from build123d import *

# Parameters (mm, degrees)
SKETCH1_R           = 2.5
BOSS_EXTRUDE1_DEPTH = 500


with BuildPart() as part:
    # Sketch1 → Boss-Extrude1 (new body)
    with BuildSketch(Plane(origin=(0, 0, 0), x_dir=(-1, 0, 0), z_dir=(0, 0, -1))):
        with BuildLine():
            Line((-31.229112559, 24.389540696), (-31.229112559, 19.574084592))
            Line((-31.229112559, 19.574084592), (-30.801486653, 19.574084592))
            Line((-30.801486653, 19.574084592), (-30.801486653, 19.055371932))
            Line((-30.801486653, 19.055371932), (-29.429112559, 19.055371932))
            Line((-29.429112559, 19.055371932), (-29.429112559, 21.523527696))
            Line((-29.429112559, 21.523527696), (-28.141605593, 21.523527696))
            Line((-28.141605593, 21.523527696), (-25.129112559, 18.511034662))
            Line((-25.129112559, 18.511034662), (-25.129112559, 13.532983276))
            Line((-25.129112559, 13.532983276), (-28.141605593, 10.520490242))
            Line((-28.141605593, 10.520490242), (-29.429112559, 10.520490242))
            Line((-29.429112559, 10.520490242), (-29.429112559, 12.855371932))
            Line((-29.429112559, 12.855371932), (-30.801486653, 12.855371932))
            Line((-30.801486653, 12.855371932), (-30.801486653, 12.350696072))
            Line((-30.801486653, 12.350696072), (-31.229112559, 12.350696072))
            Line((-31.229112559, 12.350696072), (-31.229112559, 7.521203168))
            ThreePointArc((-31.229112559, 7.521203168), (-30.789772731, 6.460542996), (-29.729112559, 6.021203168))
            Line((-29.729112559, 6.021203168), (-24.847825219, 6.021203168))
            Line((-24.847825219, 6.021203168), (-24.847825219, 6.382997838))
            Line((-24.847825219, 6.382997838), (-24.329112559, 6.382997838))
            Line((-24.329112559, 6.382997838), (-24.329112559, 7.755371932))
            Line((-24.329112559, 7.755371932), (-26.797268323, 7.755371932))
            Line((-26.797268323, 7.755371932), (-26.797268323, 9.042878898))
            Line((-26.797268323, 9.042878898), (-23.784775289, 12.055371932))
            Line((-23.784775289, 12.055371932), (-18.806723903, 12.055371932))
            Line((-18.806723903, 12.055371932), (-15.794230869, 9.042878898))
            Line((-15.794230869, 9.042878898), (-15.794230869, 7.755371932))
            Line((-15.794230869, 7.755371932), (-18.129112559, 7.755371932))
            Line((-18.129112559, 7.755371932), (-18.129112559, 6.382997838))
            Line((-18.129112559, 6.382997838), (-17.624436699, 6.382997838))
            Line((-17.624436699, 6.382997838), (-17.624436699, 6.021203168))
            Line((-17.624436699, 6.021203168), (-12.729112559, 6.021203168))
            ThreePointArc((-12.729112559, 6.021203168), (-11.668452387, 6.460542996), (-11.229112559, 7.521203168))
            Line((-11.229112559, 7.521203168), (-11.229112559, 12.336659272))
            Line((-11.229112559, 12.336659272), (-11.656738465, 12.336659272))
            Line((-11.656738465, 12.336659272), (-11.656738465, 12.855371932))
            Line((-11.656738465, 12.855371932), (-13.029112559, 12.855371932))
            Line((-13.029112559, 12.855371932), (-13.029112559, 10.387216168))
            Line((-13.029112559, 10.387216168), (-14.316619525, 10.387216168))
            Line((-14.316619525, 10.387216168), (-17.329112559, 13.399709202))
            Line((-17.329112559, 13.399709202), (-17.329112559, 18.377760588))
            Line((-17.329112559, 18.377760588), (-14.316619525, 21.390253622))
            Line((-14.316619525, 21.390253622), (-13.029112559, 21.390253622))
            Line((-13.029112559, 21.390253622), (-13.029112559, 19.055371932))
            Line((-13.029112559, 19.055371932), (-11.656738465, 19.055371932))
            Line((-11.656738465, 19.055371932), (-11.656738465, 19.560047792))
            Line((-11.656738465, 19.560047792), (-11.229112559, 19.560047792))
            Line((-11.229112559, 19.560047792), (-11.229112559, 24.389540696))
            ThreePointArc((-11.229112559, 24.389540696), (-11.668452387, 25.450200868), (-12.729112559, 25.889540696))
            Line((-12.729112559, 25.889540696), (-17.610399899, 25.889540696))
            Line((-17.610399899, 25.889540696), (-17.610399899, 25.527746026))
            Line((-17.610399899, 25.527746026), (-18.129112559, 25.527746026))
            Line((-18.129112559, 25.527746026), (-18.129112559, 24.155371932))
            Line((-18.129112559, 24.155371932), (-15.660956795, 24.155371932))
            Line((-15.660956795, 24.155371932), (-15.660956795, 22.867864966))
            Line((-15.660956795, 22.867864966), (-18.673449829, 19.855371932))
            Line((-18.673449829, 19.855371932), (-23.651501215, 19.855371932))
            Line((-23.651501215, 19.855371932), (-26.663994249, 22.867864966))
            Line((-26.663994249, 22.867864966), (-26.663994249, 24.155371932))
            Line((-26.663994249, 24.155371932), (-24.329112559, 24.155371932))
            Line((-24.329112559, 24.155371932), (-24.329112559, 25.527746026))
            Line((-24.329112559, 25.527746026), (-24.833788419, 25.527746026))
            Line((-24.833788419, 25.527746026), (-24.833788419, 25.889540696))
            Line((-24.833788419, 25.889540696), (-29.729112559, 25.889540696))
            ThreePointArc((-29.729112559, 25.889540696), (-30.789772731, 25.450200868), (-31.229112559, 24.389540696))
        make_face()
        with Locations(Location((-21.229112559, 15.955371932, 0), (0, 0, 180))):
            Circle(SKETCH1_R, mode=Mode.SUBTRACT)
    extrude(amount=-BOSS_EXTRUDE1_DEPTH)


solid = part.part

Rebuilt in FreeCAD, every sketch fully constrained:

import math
import FreeCAD as App
import Part
import Sketcher
Q = App.Units.Quantity

doc = App.newDocument("Part")
body = doc.addObject("PartDesign::Body", "Body")

# Sketch on XY plane
sketch1 = body.newObject("Sketcher::SketchObject", "Sketch")
sketch1.AttachmentSupport = (doc.getObject("XY_Plane"), [""])
sketch1.MapMode = "FlatFace"
sketch1.addGeometry(Part.LineSegment(App.Vector(31.229113, 24.389541, 0), App.Vector(31.229113, 19.574085, 0)), False)
sketch1.addGeometry(Part.LineSegment(App.Vector(31.229113, 19.574085, 0), App.Vector(30.801487, 19.574085, 0)), False)
sketch1.addGeometry(Part.LineSegment(App.Vector(30.801487, 19.574085, 0), App.Vector(30.801487, 19.055372, 0)), False)
sketch1.addGeometry(Part.LineSegment(App.Vector(30.801487, 19.055372, 0), App.Vector(29.429113, 19.055372, 0)), False)
sketch1.addGeometry(Part.LineSegment(App.Vector(29.429113, 19.055372, 0), App.Vector(29.429113, 21.523528, 0)), False)
sketch1.addGeometry(Part.LineSegment(App.Vector(29.429113, 21.523528, 0), App.Vector(28.141606, 21.523528, 0)), False)
sketch1.addGeometry(Part.LineSegment(App.Vector(28.141606, 21.523528, 0), App.Vector(25.129113, 18.511035, 0)), False)
sketch1.addGeometry(Part.LineSegment(App.Vector(25.129113, 18.511035, 0), App.Vector(25.129113, 13.532983, 0)), False)
sketch1.addGeometry(Part.LineSegment(App.Vector(25.129113, 13.532983, 0), App.Vector(28.141606, 10.52049, 0)), False)
sketch1.addGeometry(Part.LineSegment(App.Vector(28.141606, 10.52049, 0), App.Vector(29.429113, 10.52049, 0)), False)
sketch1.addGeometry(Part.LineSegment(App.Vector(29.429113, 10.52049, 0), App.Vector(29.429113, 12.855372, 0)), False)
sketch1.addGeometry(Part.LineSegment(App.Vector(29.429113, 12.855372, 0), App.Vector(30.801487, 12.855372, 0)), False)
sketch1.addGeometry(Part.LineSegment(App.Vector(30.801487, 12.855372, 0), App.Vector(30.801487, 12.350696, 0)), False)
sketch1.addGeometry(Part.LineSegment(App.Vector(30.801487, 12.350696, 0), App.Vector(31.229113, 12.350696, 0)), False)
sketch1.addGeometry(Part.LineSegment(App.Vector(31.229113, 12.350696, 0), App.Vector(31.229113, 7.521203, 0)), False)
sketch1.addGeometry(Part.ArcOfCircle(Part.Circle(App.Vector(29.729113, 7.521203, 0), App.Vector(0, 0, 1), 1.5), math.radians(-90), math.radians(0)), False)
sketch1.addGeometry(Part.LineSegment(App.Vector(29.729113, 6.021203, 0), App.Vector(24.847825, 6.021203, 0)), False)
sketch1.addGeometry(Part.LineSegment(App.Vector(24.847825, 6.021203, 0), App.Vector(24.847825, 6.382998, 0)), False)
sketch1.addGeometry(Part.LineSegment(App.Vector(24.847825, 6.382998, 0), App.Vector(24.329113, 6.382998, 0)), False)
sketch1.addGeometry(Part.LineSegment(App.Vector(24.329113, 6.382998, 0), App.Vector(24.329113, 7.755372, 0)), False)
sketch1.addGeometry(Part.LineSegment(App.Vector(24.329113, 7.755372, 0), App.Vector(26.797268, 7.755372, 0)), False)
sketch1.addGeometry(Part.LineSegment(App.Vector(26.797268, 7.755372, 0), App.Vector(26.797268, 9.042879, 0)), False)
sketch1.addGeometry(Part.LineSegment(App.Vector(26.797268, 9.042879, 0), App.Vector(23.784775, 12.055372, 0)), False)
sketch1.addGeometry(Part.LineSegment(App.Vector(23.784775, 12.055372, 0), App.Vector(18.806724, 12.055372, 0)), False)
sketch1.addGeometry(Part.LineSegment(App.Vector(18.806724, 12.055372, 0), App.Vector(15.794231, 9.042879, 0)), False)
sketch1.addGeometry(Part.LineSegment(App.Vector(15.794231, 9.042879, 0), App.Vector(15.794231, 7.755372, 0)), False)
sketch1.addGeometry(Part.LineSegment(App.Vector(15.794231, 7.755372, 0), App.Vector(18.129113, 7.755372, 0)), False)
sketch1.addGeometry(Part.LineSegment(App.Vector(18.129113, 7.755372, 0), App.Vector(18.129113, 6.382998, 0)), False)
sketch1.addGeometry(Part.LineSegment(App.Vector(18.129113, 6.382998, 0), App.Vector(17.624437, 6.382998, 0)), False)
sketch1.addGeometry(Part.LineSegment(App.Vector(17.624437, 6.382998, 0), App.Vector(17.624437, 6.021203, 0)), False)
sketch1.addGeometry(Part.LineSegment(App.Vector(17.624437, 6.021203, 0), App.Vector(12.729113, 6.021203, 0)), False)
sketch1.addGeometry(Part.ArcOfCircle(Part.Circle(App.Vector(12.729113, 7.521203, 0), App.Vector(0, 0, 1), 1.5), math.radians(180), math.radians(270)), False)
sketch1.addGeometry(Part.LineSegment(App.Vector(11.229113, 7.521203, 0), App.Vector(11.229113, 12.336659, 0)), False)
sketch1.addGeometry(Part.LineSegment(App.Vector(11.229113, 12.336659, 0), App.Vector(11.656738, 12.336659, 0)), False)
sketch1.addGeometry(Part.LineSegment(App.Vector(11.656738, 12.336659, 0), App.Vector(11.656738, 12.855372, 0)), False)
sketch1.addGeometry(Part.LineSegment(App.Vector(11.656738, 12.855372, 0), App.Vector(13.029113, 12.855372, 0)), False)
sketch1.addGeometry(Part.LineSegment(App.Vector(13.029113, 12.855372, 0), App.Vector(13.029113, 10.387216, 0)), False)
sketch1.addGeometry(Part.LineSegment(App.Vector(13.029113, 10.387216, 0), App.Vector(14.31662, 10.387216, 0)), False)
sketch1.addGeometry(Part.LineSegment(App.Vector(14.31662, 10.387216, 0), App.Vector(17.329113, 13.399709, 0)), False)
sketch1.addGeometry(Part.LineSegment(App.Vector(17.329113, 13.399709, 0), App.Vector(17.329113, 18.377761, 0)), False)
sketch1.addGeometry(Part.LineSegment(App.Vector(17.329113, 18.377761, 0), App.Vector(14.31662, 21.390254, 0)), False)
sketch1.addGeometry(Part.LineSegment(App.Vector(14.31662, 21.390254, 0), App.Vector(13.029113, 21.390254, 0)), False)
sketch1.addGeometry(Part.LineSegment(App.Vector(13.029113, 21.390254, 0), App.Vector(13.029113, 19.055372, 0)), False)
sketch1.addGeometry(Part.LineSegment(App.Vector(13.029113, 19.055372, 0), App.Vector(11.656738, 19.055372, 0)), False)
sketch1.addGeometry(Part.LineSegment(App.Vector(11.656738, 19.055372, 0), App.Vector(11.656738, 19.560048, 0)), False)
sketch1.addGeometry(Part.LineSegment(App.Vector(11.656738, 19.560048, 0), App.Vector(11.229113, 19.560048, 0)), False)
sketch1.addGeometry(Part.LineSegment(App.Vector(11.229113, 19.560048, 0), App.Vector(11.229113, 24.389541, 0)), False)
sketch1.addGeometry(Part.ArcOfCircle(Part.Circle(App.Vector(12.729113, 24.389541, 0), App.Vector(0, 0, 1), 1.5), math.radians(90), math.radians(180)), False)
sketch1.addGeometry(Part.LineSegment(App.Vector(12.729113, 25.889541, 0), App.Vector(17.6104, 25.889541, 0)), False)
sketch1.addGeometry(Part.LineSegment(App.Vector(17.6104, 25.889541, 0), App.Vector(17.6104, 25.527746, 0)), False)
sketch1.addGeometry(Part.LineSegment(App.Vector(17.6104, 25.527746, 0), App.Vector(18.129113, 25.527746, 0)), False)
sketch1.addGeometry(Part.LineSegment(App.Vector(18.129113, 25.527746, 0), App.Vector(18.129113, 24.155372, 0)), False)
sketch1.addGeometry(Part.LineSegment(App.Vector(18.129113, 24.155372, 0), App.Vector(15.660957, 24.155372, 0)), False)
sketch1.addGeometry(Part.LineSegment(App.Vector(15.660957, 24.155372, 0), App.Vector(15.660957, 22.867865, 0)), False)
sketch1.addGeometry(Part.LineSegment(App.Vector(15.660957, 22.867865, 0), App.Vector(18.67345, 19.855372, 0)), False)
sketch1.addGeometry(Part.LineSegment(App.Vector(18.67345, 19.855372, 0), App.Vector(23.651501, 19.855372, 0)), False)
sketch1.addGeometry(Part.LineSegment(App.Vector(23.651501, 19.855372, 0), App.Vector(26.663994, 22.867865, 0)), False)
sketch1.addGeometry(Part.LineSegment(App.Vector(26.663994, 22.867865, 0), App.Vector(26.663994, 24.155372, 0)), False)
sketch1.addGeometry(Part.LineSegment(App.Vector(26.663994, 24.155372, 0), App.Vector(24.329113, 24.155372, 0)), False)
sketch1.addGeometry(Part.LineSegment(App.Vector(24.329113, 24.155372, 0), App.Vector(24.329113, 25.527746, 0)), False)
sketch1.addGeometry(Part.LineSegment(App.Vector(24.329113, 25.527746, 0), App.Vector(24.833788, 25.527746, 0)), False)
sketch1.addGeometry(Part.LineSegment(App.Vector(24.833788, 25.527746, 0), App.Vector(24.833788, 25.889541, 0)), False)
sketch1.addGeometry(Part.LineSegment(App.Vector(24.833788, 25.889541, 0), App.Vector(29.729113, 25.889541, 0)), False)
sketch1.addGeometry(Part.ArcOfCircle(Part.Circle(App.Vector(29.729113, 24.389541, 0), App.Vector(0, 0, 1), 1.5), math.radians(0), math.radians(90)), False)
sketch1.addGeometry(Part.Circle(App.Vector(21.229113, 15.955372, 0), App.Vector(0, 0, 1), 2.5), False)
sketch1.addConstraint(Sketcher.Constraint("Coincident", 0, 2, 1, 1))
sketch1.addConstraint(Sketcher.Constraint("Coincident", 1, 2, 2, 1))
sketch1.addConstraint(Sketcher.Constraint("Coincident", 2, 2, 3, 1))
sketch1.addConstraint(Sketcher.Constraint("Coincident", 3, 2, 4, 1))
sketch1.addConstraint(Sketcher.Constraint("Coincident", 4, 2, 5, 1))
sketch1.addConstraint(Sketcher.Constraint("Coincident", 5, 2, 6, 1))
sketch1.addConstraint(Sketcher.Constraint("Coincident", 6, 2, 7, 1))
sketch1.addConstraint(Sketcher.Constraint("Coincident", 7, 2, 8, 1))
sketch1.addConstraint(Sketcher.Constraint("Coincident", 8, 2, 9, 1))
sketch1.addConstraint(Sketcher.Constraint("Coincident", 9, 2, 10, 1))
sketch1.addConstraint(Sketcher.Constraint("Coincident", 10, 2, 11, 1))
sketch1.addConstraint(Sketcher.Constraint("Coincident", 11, 2, 12, 1))
sketch1.addConstraint(Sketcher.Constraint("Coincident", 12, 2, 13, 1))
sketch1.addConstraint(Sketcher.Constraint("Coincident", 13, 2, 14, 1))
sketch1.addConstraint(Sketcher.Constraint("Tangent", 14, 2, 15, 2))
sketch1.addConstraint(Sketcher.Constraint("Tangent", 15, 1, 16, 1))
sketch1.addConstraint(Sketcher.Constraint("Coincident", 16, 2, 17, 1))
sketch1.addConstraint(Sketcher.Constraint("Coincident", 17, 2, 18, 1))
sketch1.addConstraint(Sketcher.Constraint("Coincident", 18, 2, 19, 1))
sketch1.addConstraint(Sketcher.Constraint("Coincident", 19, 2, 20, 1))
sketch1.addConstraint(Sketcher.Constraint("Coincident", 20, 2, 21, 1))
sketch1.addConstraint(Sketcher.Constraint("Coincident", 21, 2, 22, 1))
sketch1.addConstraint(Sketcher.Constraint("Coincident", 22, 2, 23, 1))
sketch1.addConstraint(Sketcher.Constraint("Coincident", 23, 2, 24, 1))
sketch1.addConstraint(Sketcher.Constraint("Coincident", 24, 2, 25, 1))
sketch1.addConstraint(Sketcher.Constraint("Coincident", 25, 2, 26, 1))
sketch1.addConstraint(Sketcher.Constraint("Coincident", 26, 2, 27, 1))
sketch1.addConstraint(Sketcher.Constraint("Coincident", 27, 2, 28, 1))
sketch1.addConstraint(Sketcher.Constraint("Coincident", 28, 2, 29, 1))
sketch1.addConstraint(Sketcher.Constraint("Coincident", 29, 2, 30, 1))
sketch1.addConstraint(Sketcher.Constraint("Tangent", 30, 2, 31, 2))
sketch1.addConstraint(Sketcher.Constraint("Tangent", 31, 1, 32, 1))
sketch1.addConstraint(Sketcher.Constraint("Coincident", 32, 2, 33, 1))
sketch1.addConstraint(Sketcher.Constraint("Coincident", 33, 2, 34, 1))
sketch1.addConstraint(Sketcher.Constraint("Coincident", 34, 2, 35, 1))
sketch1.addConstraint(Sketcher.Constraint("Coincident", 35, 2, 36, 1))
sketch1.addConstraint(Sketcher.Constraint("Coincident", 36, 2, 37, 1))
sketch1.addConstraint(Sketcher.Constraint("Coincident", 37, 2, 38, 1))
sketch1.addConstraint(Sketcher.Constraint("Coincident", 38, 2, 39, 1))
sketch1.addConstraint(Sketcher.Constraint("Coincident", 39, 2, 40, 1))
sketch1.addConstraint(Sketcher.Constraint("Coincident", 40, 2, 41, 1))
sketch1.addConstraint(Sketcher.Constraint("Coincident", 41, 2, 42, 1))
sketch1.addConstraint(Sketcher.Constraint("Coincident", 42, 2, 43, 1))
sketch1.addConstraint(Sketcher.Constraint("Coincident", 43, 2, 44, 1))
sketch1.addConstraint(Sketcher.Constraint("Coincident", 44, 2, 45, 1))
sketch1.addConstraint(Sketcher.Constraint("Coincident", 45, 2, 46, 1))
sketch1.addConstraint(Sketcher.Constraint("Tangent", 46, 2, 47, 2))
sketch1.addConstraint(Sketcher.Constraint("Tangent", 47, 1, 48, 1))
sketch1.addConstraint(Sketcher.Constraint("Coincident", 48, 2, 49, 1))
sketch1.addConstraint(Sketcher.Constraint("Coincident", 49, 2, 50, 1))
sketch1.addConstraint(Sketcher.Constraint("Coincident", 50, 2, 51, 1))
sketch1.addConstraint(Sketcher.Constraint("Coincident", 51, 2, 52, 1))
sketch1.addConstraint(Sketcher.Constraint("Coincident", 52, 2, 53, 1))
sketch1.addConstraint(Sketcher.Constraint("Coincident", 53, 2, 54, 1))
sketch1.addConstraint(Sketcher.Constraint("Coincident", 54, 2, 55, 1))
sketch1.addConstraint(Sketcher.Constraint("Coincident", 55, 2, 56, 1))
sketch1.addConstraint(Sketcher.Constraint("Coincident", 56, 2, 57, 1))
sketch1.addConstraint(Sketcher.Constraint("Coincident", 57, 2, 58, 1))
sketch1.addConstraint(Sketcher.Constraint("Coincident", 58, 2, 59, 1))
sketch1.addConstraint(Sketcher.Constraint("Coincident", 59, 2, 60, 1))
sketch1.addConstraint(Sketcher.Constraint("Coincident", 60, 2, 61, 1))
sketch1.addConstraint(Sketcher.Constraint("Coincident", 61, 2, 62, 1))
sketch1.addConstraint(Sketcher.Constraint("Tangent", 62, 2, 63, 2))
sketch1.addConstraint(Sketcher.Constraint("Tangent", 63, 1, 0, 1))
sketch1.addConstraint(Sketcher.Constraint("Vertical", 0))
sketch1.addConstraint(Sketcher.Constraint("Horizontal", 1))
sketch1.addConstraint(Sketcher.Constraint("Vertical", 2))
sketch1.addConstraint(Sketcher.Constraint("Horizontal", 3))
sketch1.addConstraint(Sketcher.Constraint("Vertical", 4))
sketch1.addConstraint(Sketcher.Constraint("Horizontal", 5))
sketch1.addConstraint(Sketcher.Constraint("Vertical", 7))
sketch1.addConstraint(Sketcher.Constraint("Horizontal", 9))
sketch1.addConstraint(Sketcher.Constraint("Vertical", 10))
sketch1.addConstraint(Sketcher.Constraint("Horizontal", 11))
sketch1.addConstraint(Sketcher.Constraint("Vertical", 12))
sketch1.addConstraint(Sketcher.Constraint("Horizontal", 13))
sketch1.addConstraint(Sketcher.Constraint("Vertical", 14))
sketch1.addConstraint(Sketcher.Constraint("Horizontal", 16))
sketch1.addConstraint(Sketcher.Constraint("Vertical", 17))
sketch1.addConstraint(Sketcher.Constraint("Horizontal", 18))
sketch1.addConstraint(Sketcher.Constraint("Vertical", 19))
sketch1.addConstraint(Sketcher.Constraint("Horizontal", 20))
sketch1.addConstraint(Sketcher.Constraint("Vertical", 21))
sketch1.addConstraint(Sketcher.Constraint("Horizontal", 23))
sketch1.addConstraint(Sketcher.Constraint("Vertical", 25))
sketch1.addConstraint(Sketcher.Constraint("Horizontal", 26))
sketch1.addConstraint(Sketcher.Constraint("Vertical", 27))
sketch1.addConstraint(Sketcher.Constraint("Horizontal", 28))
sketch1.addConstraint(Sketcher.Constraint("Vertical", 29))
sketch1.addConstraint(Sketcher.Constraint("Horizontal", 30))
sketch1.addConstraint(Sketcher.Constraint("Vertical", 32))
sketch1.addConstraint(Sketcher.Constraint("Horizontal", 33))
sketch1.addConstraint(Sketcher.Constraint("Vertical", 34))
sketch1.addConstraint(Sketcher.Constraint("Horizontal", 35))
sketch1.addConstraint(Sketcher.Constraint("Vertical", 36))
sketch1.addConstraint(Sketcher.Constraint("Horizontal", 37))
sketch1.addConstraint(Sketcher.Constraint("Vertical", 39))
sketch1.addConstraint(Sketcher.Constraint("Horizontal", 41))
sketch1.addConstraint(Sketcher.Constraint("Vertical", 42))
sketch1.addConstraint(Sketcher.Constraint("Horizontal", 43))
sketch1.addConstraint(Sketcher.Constraint("Vertical", 44))
sketch1.addConstraint(Sketcher.Constraint("Horizontal", 45))
sketch1.addConstraint(Sketcher.Constraint("Vertical", 46))
sketch1.addConstraint(Sketcher.Constraint("Horizontal", 48))
sketch1.addConstraint(Sketcher.Constraint("Vertical", 49))
sketch1.addConstraint(Sketcher.Constraint("Horizontal", 50))
sketch1.addConstraint(Sketcher.Constraint("Vertical", 51))
sketch1.addConstraint(Sketcher.Constraint("Horizontal", 52))
sketch1.addConstraint(Sketcher.Constraint("Vertical", 53))
sketch1.addConstraint(Sketcher.Constraint("Horizontal", 55))
sketch1.addConstraint(Sketcher.Constraint("Vertical", 57))
sketch1.addConstraint(Sketcher.Constraint("Horizontal", 58))
sketch1.addConstraint(Sketcher.Constraint("Vertical", 59))
sketch1.addConstraint(Sketcher.Constraint("Horizontal", 60))
sketch1.addConstraint(Sketcher.Constraint("Vertical", 61))
sketch1.addConstraint(Sketcher.Constraint("Horizontal", 62))
sketch1.addConstraint(Sketcher.Constraint("Equal", 15, 31))
sketch1.addConstraint(Sketcher.Constraint("Equal", 31, 47))
sketch1.addConstraint(Sketcher.Constraint("Equal", 47, 63))
sketch1.addConstraint(Sketcher.Constraint("Perpendicular", 6, 8))
sketch1.addConstraint(Sketcher.Constraint("Parallel", 8, 22))
sketch1.addConstraint(Sketcher.Constraint("Perpendicular", 22, 24))
sketch1.addConstraint(Sketcher.Constraint("Parallel", 24, 38))
sketch1.addConstraint(Sketcher.Constraint("Perpendicular", 38, 40))
sketch1.addConstraint(Sketcher.Constraint("Parallel", 40, 54))
sketch1.addConstraint(Sketcher.Constraint("Perpendicular", 54, 56))
sketch1.addConstraint(Sketcher.Constraint("Horizontal", 15, 3, 31, 3))
sketch1.addConstraint(Sketcher.Constraint("Horizontal", 47, 3, 63, 3))
sketch1.addConstraint(Sketcher.Constraint("Horizontal", 21, 2, 24, 2))
sketch1.addConstraint(Sketcher.Constraint("Horizontal", 20, 2, 25, 2))
sketch1.addConstraint(Sketcher.Constraint("Horizontal", 18, 2, 27, 2))
sketch1.addConstraint(Sketcher.Constraint("Horizontal", 11, 2, 34, 2))
sketch1.addConstraint(Sketcher.Constraint("Horizontal", 3, 2, 42, 2))
sketch1.addConstraint(Sketcher.Constraint("Horizontal", 53, 2, 56, 2))
sketch1.addConstraint(Sketcher.Constraint("Horizontal", 52, 2, 57, 2))
sketch1.addConstraint(Sketcher.Constraint("Horizontal", 50, 2, 59, 2))
sketch1.addConstraint(Sketcher.Constraint("Vertical", 31, 3, 47, 3))
sketch1.addConstraint(Sketcher.Constraint("Vertical", 15, 3, 63, 3))
sketch1.addConstraint(Sketcher.Constraint("Vertical", 5, 2, 8, 2))
sketch1.addConstraint(Sketcher.Constraint("Vertical", 4, 2, 9, 2))
sketch1.addConstraint(Sketcher.Constraint("Vertical", 2, 2, 11, 2))
sketch1.addConstraint(Sketcher.Constraint("Vertical", 37, 2, 40, 2))
sketch1.addConstraint(Sketcher.Constraint("Vertical", 36, 2, 41, 2))
sketch1.addConstraint(Sketcher.Constraint("Vertical", 34, 2, 43, 2))
sketch1.addConstraint(Sketcher.Constraint("Vertical", 27, 2, 50, 2))
sketch1.addConstraint(Sketcher.Constraint("Vertical", 19, 2, 58, 2))
sketch1.addConstraint(Sketcher.Constraint("Equal", 13, 33))
sketch1.addConstraint(Sketcher.Constraint("Equal", 11, 35))
sketch1.addConstraint(Sketcher.Constraint("Equal", 9, 37))
sketch1.addConstraint(Sketcher.Constraint("Equal", 16, 48))
sketch1.addConstraint(Sketcher.Constraint("Equal", 18, 50))
sketch1.addConstraint(Sketcher.Constraint("Equal", 20, 52))
sketch1.addConstraint(Sketcher.Constraint("Equal", 23, 55))
sketch1.addConstraint(Sketcher.Constraint("Equal", 26, 58))
sketch1.addConstraint(Sketcher.Constraint("Equal", 28, 60))
sketch1.addConstraint(Sketcher.Constraint("Equal", 50, 2))
sketch1.addConstraint(Sketcher.Constraint("Equal", 52, 4))
sketch1.addConstraint(Sketcher.Constraint("Equal", 55, 7))
sketch1.addConstraint(Sketcher.Constraint("Equal", 58, 10))
sketch1.addConstraint(Sketcher.Constraint("Equal", 60, 12))
sketch1.addConstraint(Sketcher.Constraint("Equal", 43, 19))
sketch1.addConstraint(Sketcher.Constraint("Equal", 41, 21))
sketch1.addConstraint(Sketcher.Constraint("Equal", 0, 32))
sketch1.addConstraint(Sketcher.Constraint("Equal", 2, 34))
sketch1.addConstraint(Sketcher.Constraint("Equal", 4, 36))
sketch1.addConstraint(Sketcher.Constraint("Equal", 7, 39))
sketch1.addConstraint(Sketcher.Constraint("Equal", 10, 42))
sketch1.addConstraint(Sketcher.Constraint("Equal", 12, 44))
sketch1.addConstraint(Sketcher.Constraint("Equal", 29, 49))
sketch1.addConstraint(Sketcher.Constraint("Equal", 27, 51))
sketch1.addConstraint(Sketcher.Constraint("Equal", 25, 53))
sketch1.addConstraint(Sketcher.Constraint("Equal", 6, 8))
sketch1.addConstraint(Sketcher.Constraint("Equal", 8, 22))
sketch1.addConstraint(Sketcher.Constraint("Diameter", 64, Q("5 mm")))
sketch1.addConstraint(Sketcher.Constraint("Radius", 15, Q("1.5 mm")))
sketch1.addConstraint(Sketcher.Constraint("DistanceX", 23, 2, 23, 1, Q("4.978051 mm")))
sketch1.addConstraint(Sketcher.Constraint("DistanceX", 26, 1, 26, 2, Q("2.334882 mm")))
sketch1.addConstraint(Sketcher.Constraint("DistanceX", -1, 1, 48, 2, Q("17.6104 mm")))
sketch1.addConstraint(Sketcher.Constraint("DistanceX", -1, 1, 55, 2, Q("23.651501 mm")))
sketch1.addConstraint(Sketcher.Constraint("Distance", 6, Q("4.260309 mm")))
sketch1.addConstraint(Sketcher.Constraint("DistanceX", 1, 2, 1, 1, Q("0.427626 mm")))
sketch1.addConstraint(Sketcher.Constraint("DistanceX", 3, 2, 3, 1, Q("1.372374 mm")))
sketch1.addConstraint(Sketcher.Constraint("DistanceX", 5, 2, 5, 1, Q("1.287507 mm")))
sketch1.addConstraint(Sketcher.Constraint("DistanceX", 16, 2, 16, 1, Q("4.881287 mm")))
sketch1.addConstraint(Sketcher.Constraint("DistanceX", 18, 2, 18, 1, Q("0.518713 mm")))
sketch1.addConstraint(Sketcher.Constraint("DistanceX", 28, 2, 28, 1, Q("0.504676 mm")))
sketch1.addConstraint(Sketcher.Constraint("DistanceY", 0, 2, 0, 1, Q("4.815456 mm")))
sketch1.addConstraint(Sketcher.Constraint("DistanceY", 17, 1, 17, 2, Q("0.361795 mm")))
sketch1.addConstraint(Sketcher.Constraint("DistanceY", -1, 1, 47, 3, Q("24.389541 mm")))
sketch1.addConstraint(Sketcher.Constraint("DistanceY", -1, 1, 64, 3, Q("15.955372 mm")))
sketch1.addConstraint(Sketcher.Constraint("DistanceX", -1, 1, 64, 3, Q("21.229113 mm")))
pad1 = body.newObject("PartDesign::Pad", "Pad")
pad1.Profile = sketch1
pad1.Length = 500

doc.recompute()
